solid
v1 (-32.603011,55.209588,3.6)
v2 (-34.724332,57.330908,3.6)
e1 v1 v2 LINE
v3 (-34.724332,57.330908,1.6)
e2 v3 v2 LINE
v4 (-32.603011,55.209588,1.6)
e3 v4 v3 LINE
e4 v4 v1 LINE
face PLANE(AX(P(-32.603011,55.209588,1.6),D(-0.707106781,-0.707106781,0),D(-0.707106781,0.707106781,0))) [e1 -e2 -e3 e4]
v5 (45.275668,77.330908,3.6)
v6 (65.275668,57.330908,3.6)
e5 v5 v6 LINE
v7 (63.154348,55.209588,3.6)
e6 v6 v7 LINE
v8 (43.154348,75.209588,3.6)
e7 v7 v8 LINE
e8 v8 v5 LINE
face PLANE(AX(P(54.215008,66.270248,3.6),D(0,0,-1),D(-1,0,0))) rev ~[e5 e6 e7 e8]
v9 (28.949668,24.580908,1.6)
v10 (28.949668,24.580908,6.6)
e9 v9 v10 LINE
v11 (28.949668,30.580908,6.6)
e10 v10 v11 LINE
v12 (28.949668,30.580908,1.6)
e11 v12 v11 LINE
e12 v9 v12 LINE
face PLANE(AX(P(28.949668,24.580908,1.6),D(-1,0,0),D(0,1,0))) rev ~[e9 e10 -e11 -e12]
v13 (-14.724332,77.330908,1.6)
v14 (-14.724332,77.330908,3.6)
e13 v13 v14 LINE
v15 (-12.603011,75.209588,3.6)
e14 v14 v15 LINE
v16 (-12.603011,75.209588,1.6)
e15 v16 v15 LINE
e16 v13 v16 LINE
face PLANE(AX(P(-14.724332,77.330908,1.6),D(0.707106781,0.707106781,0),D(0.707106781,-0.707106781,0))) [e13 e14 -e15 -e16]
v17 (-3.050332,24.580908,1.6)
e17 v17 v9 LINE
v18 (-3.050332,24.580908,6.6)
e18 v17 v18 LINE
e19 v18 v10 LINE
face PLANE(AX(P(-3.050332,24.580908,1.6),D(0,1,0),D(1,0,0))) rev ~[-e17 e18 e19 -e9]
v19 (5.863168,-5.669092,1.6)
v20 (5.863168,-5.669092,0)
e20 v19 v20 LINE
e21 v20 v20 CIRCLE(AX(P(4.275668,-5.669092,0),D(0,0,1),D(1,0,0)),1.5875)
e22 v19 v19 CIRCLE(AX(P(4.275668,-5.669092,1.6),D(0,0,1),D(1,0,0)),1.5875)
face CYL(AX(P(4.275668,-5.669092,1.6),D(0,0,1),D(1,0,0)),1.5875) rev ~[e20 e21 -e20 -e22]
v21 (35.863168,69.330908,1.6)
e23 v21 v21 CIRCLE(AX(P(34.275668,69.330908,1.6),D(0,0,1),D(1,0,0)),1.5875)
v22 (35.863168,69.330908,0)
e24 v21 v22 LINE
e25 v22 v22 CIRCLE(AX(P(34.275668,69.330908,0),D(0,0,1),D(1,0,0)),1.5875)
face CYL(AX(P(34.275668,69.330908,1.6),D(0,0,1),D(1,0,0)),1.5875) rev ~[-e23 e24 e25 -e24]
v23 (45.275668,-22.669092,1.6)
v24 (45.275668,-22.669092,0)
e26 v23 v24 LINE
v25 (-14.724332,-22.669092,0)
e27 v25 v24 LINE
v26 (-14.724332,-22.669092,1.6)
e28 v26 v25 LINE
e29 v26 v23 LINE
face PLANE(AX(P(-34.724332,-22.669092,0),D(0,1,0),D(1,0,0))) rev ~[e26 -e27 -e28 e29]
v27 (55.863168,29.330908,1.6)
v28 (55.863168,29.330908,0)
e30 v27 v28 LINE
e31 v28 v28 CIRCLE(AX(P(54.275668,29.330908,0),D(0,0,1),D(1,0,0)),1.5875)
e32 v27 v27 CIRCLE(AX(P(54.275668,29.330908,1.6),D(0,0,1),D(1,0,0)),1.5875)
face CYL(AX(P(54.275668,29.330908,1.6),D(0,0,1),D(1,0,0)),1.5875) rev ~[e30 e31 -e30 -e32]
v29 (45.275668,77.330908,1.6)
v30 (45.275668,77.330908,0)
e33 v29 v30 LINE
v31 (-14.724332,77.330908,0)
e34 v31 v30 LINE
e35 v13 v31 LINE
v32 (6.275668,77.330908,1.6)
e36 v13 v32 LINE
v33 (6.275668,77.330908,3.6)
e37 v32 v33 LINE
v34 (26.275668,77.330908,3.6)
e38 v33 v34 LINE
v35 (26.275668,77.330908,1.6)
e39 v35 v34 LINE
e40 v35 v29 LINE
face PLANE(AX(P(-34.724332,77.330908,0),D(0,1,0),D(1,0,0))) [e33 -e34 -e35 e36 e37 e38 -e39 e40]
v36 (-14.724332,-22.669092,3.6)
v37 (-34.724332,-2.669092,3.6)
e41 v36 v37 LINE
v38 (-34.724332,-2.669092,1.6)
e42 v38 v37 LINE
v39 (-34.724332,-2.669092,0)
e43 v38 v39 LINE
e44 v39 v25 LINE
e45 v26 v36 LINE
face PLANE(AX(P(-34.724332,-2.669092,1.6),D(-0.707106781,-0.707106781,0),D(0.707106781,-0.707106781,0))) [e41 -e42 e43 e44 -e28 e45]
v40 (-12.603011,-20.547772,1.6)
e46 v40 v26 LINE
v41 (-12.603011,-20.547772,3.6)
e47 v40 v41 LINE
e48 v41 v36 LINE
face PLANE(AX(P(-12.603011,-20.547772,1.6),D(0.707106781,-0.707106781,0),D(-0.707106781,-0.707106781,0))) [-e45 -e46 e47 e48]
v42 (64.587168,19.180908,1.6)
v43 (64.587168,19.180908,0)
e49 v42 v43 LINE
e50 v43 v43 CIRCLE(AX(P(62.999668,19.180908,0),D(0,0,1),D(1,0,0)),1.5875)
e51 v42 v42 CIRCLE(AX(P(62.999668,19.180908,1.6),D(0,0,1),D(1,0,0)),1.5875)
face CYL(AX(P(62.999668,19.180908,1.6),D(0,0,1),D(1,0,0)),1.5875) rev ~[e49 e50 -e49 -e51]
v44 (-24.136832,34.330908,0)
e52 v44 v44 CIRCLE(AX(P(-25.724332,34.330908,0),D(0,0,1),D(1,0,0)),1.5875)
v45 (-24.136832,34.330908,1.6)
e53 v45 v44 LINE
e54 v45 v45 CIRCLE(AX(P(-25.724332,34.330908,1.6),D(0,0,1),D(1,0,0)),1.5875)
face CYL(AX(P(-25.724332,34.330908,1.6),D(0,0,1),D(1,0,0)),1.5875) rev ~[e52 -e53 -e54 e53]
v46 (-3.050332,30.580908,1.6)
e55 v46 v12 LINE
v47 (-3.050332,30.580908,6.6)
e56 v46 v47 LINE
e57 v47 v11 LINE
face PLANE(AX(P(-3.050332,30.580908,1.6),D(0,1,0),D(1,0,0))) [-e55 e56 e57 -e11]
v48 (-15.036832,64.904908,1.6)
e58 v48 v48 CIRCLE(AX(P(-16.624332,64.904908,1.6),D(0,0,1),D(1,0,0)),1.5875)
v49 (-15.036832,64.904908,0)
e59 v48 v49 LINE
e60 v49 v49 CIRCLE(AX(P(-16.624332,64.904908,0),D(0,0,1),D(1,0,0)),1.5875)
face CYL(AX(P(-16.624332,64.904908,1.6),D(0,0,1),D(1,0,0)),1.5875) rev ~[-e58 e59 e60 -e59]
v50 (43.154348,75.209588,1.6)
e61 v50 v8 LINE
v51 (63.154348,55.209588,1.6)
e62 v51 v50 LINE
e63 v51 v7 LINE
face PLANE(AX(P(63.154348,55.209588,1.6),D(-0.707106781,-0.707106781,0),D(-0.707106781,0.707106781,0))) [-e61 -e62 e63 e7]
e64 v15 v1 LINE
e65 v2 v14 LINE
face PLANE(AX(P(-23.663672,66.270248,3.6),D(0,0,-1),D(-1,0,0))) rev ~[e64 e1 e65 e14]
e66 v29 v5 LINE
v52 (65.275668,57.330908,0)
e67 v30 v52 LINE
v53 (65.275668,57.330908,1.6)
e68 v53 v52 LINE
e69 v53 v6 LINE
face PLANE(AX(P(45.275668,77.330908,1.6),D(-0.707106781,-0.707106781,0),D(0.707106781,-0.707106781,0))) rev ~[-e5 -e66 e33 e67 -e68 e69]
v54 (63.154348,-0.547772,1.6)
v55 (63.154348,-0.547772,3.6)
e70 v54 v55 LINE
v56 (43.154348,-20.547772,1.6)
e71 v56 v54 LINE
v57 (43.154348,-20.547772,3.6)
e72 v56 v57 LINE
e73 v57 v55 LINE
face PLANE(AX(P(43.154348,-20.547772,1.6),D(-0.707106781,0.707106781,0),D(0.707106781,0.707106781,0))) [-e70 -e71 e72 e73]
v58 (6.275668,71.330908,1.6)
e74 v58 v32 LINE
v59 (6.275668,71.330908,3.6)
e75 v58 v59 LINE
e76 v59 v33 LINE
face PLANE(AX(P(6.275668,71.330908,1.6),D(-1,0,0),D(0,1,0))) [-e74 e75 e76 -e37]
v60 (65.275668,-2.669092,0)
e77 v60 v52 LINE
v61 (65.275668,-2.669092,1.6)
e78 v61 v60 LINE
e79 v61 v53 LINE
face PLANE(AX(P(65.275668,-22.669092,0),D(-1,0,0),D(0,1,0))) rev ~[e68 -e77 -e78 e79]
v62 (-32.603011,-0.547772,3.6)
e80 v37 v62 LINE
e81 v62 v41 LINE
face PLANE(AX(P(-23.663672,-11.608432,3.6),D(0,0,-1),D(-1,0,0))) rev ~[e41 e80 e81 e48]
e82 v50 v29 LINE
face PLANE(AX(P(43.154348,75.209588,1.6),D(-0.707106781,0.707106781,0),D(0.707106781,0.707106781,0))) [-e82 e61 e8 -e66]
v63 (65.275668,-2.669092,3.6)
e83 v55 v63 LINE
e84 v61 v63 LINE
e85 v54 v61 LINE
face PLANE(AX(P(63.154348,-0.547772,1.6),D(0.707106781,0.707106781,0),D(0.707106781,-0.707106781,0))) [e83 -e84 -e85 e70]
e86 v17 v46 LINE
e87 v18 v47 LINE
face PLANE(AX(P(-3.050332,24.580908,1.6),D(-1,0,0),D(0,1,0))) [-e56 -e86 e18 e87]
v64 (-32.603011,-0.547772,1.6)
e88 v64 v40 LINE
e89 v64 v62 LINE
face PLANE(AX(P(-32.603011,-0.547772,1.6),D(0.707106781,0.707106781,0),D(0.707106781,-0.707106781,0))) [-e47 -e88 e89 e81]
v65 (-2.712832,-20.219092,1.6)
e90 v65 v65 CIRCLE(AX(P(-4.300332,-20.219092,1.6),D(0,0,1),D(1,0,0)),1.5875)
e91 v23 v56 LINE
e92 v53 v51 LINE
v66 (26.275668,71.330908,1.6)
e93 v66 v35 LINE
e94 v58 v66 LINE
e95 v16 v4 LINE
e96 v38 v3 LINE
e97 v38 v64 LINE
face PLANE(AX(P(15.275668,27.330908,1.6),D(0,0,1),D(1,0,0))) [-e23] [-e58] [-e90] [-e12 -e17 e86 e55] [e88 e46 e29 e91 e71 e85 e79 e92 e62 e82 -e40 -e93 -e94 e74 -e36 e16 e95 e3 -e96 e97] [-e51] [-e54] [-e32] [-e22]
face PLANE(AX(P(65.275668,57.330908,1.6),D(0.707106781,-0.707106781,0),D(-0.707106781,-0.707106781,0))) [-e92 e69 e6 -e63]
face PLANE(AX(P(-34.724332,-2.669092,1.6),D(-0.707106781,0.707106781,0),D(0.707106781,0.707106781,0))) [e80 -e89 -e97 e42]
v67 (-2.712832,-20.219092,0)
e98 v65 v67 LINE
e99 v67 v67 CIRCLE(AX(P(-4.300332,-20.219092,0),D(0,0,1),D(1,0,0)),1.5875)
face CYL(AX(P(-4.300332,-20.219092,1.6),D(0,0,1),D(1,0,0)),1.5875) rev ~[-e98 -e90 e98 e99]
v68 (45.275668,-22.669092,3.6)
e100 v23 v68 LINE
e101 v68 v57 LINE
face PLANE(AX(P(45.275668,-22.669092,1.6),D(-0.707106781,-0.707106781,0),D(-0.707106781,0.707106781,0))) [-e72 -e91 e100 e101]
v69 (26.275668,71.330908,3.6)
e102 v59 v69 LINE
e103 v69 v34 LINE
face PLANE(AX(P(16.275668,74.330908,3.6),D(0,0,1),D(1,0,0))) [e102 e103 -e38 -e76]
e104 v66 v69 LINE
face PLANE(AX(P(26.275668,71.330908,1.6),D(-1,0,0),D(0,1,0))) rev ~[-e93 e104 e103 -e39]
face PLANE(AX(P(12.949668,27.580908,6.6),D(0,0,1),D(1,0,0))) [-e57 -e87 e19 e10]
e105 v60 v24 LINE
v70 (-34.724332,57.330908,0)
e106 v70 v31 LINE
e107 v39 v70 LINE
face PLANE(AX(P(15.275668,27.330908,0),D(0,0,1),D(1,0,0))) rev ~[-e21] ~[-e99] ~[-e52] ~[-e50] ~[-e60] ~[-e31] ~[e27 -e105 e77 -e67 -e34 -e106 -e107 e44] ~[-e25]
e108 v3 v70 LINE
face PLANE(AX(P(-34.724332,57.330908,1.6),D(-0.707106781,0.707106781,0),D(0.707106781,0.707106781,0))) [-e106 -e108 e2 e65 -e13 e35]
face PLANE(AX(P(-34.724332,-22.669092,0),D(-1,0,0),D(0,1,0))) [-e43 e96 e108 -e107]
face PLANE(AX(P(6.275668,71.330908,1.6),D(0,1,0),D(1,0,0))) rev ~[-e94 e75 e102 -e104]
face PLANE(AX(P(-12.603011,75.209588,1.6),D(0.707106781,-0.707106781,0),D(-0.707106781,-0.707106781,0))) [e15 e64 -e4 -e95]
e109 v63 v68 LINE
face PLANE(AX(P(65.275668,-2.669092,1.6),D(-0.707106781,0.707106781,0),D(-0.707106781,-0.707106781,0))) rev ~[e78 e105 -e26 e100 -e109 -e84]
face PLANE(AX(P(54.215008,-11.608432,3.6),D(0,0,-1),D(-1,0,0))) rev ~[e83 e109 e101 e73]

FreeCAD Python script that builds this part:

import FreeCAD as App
import Part
import Sketcher

V = App.Vector


def add_polygon(sketch, points):
    """Adds a closed chain of lines whose ends are joined by coincident constraints."""
    first, n = sketch.GeometryCount, len(points)
    for a, b in zip(points, points[1:] + points[:1]):
        sketch.addGeometry(Part.LineSegment(App.Vector(*a, 0), App.Vector(*b, 0)), False)
    for i in range(n):
        sketch.addConstraint(Sketcher.Constraint("Coincident", first + i, 2, first + (i + 1) % n, 1))

doc = App.newDocument("Part")
body = doc.addObject("PartDesign::Body", "Body")

# Sketch on XY plane
sketch1 = body.newObject("Sketcher::SketchObject", "Sketch")
sketch1.AttachmentSupport = (doc.getObject("XY_Plane"), [""])
sketch1.MapMode = "FlatFace"
add_polygon(sketch1, [(-35, 77), (-35, -23), (65, -23), (65, 77)])  # lines 0-3
sketch1.addConstraint([
    Sketcher.Constraint("Vertical", 0),
    Sketcher.Constraint("Horizontal", 1),
    Sketcher.Constraint("Vertical", 2),
    Sketcher.Constraint("Horizontal", 3),
    Sketcher.Constraint("Equal", 3, 0),
    Sketcher.Constraint("DistanceX", 1, 1, 1, 2, 100.0),
    Sketcher.Constraint("DistanceX", 0, 2, -1, 1, 34.724332),
    Sketcher.Constraint("DistanceY", 0, 2, -1, 1, 22.669092),
])
pad1 = body.newObject("PartDesign::Pad", "Pad")
pad1.Profile = sketch1
pad1.Length = 1.6

# Sketch on XY plane
sketch2 = body.newObject("Sketcher::SketchObject", "Sketch001")
sketch2.AttachmentSupport = (doc.getObject("XY_Plane"), [""])
sketch2.MapMode = "FlatFace"
sketch2.AttachmentOffset = App.Placement(V(0, 0, 1.6), App.Rotation())
add_polygon(sketch2, [(-35, 57), (-15, 77), (-35, 77)])  # lines 0-2
add_polygon(sketch2, [(-15, -23), (-35, -3), (-35, -23)])  # lines 3-5
add_polygon(sketch2, [(45, 77), (65, 57), (65, 77)])  # lines 6-8
add_polygon(sketch2, [(65, -3), (45, -23), (65, -23)])  # lines 9-11
sketch2.addConstraint([
    Sketcher.Constraint("Horizontal", 1),
    Sketcher.Constraint("Vertical", 2),
    Sketcher.Constraint("Vertical", 4),
    Sketcher.Constraint("Horizontal", 5),
    Sketcher.Constraint("Vertical", 7),
    Sketcher.Constraint("Horizontal", 8),
    Sketcher.Constraint("Horizontal", 10),
    Sketcher.Constraint("Vertical", 11),
    Sketcher.Constraint("Perpendicular", 0, 3),
    Sketcher.Constraint("Parallel", 3, 6),
    Sketcher.Constraint("Perpendicular", 6, 9),
    Sketcher.Constraint("Horizontal", 2, 2, 6, 2),
    Sketcher.Constraint("Horizontal", 1, 2, 7, 2),
    Sketcher.Constraint("Horizontal", 5, 2, 9, 2),
    Sketcher.Constraint("Horizontal", 3, 2, 11, 2),
    Sketcher.Constraint("Vertical", 2, 2, 3, 2),
    Sketcher.Constraint("Vertical", 0, 2, 5, 2),
    Sketcher.Constraint("Vertical", 8, 2, 9, 2),
    Sketcher.Constraint("Vertical", 7, 2, 10, 2),
    Sketcher.Constraint("DistanceX", 1, 2, 1, 1, 20.0),
    Sketcher.Constraint("DistanceY", 3, 2, 2, 2, 60.0),
    Sketcher.Constraint("DistanceX", 0, 2, 6, 2, 80.0),
    Sketcher.Constraint("DistanceX", 0, 2, -1, 1, 14.724332),
    Sketcher.Constraint("DistanceY", -1, 1, 0, 2, 77.330908),
])
pocket1 = body.newObject("PartDesign::Pocket", "Pocket")
pocket1.Profile = sketch2
pocket1.Length = 1.6

# Sketch on XY plane
sketch3 = body.newObject("Sketcher::SketchObject", "Sketch002")
sketch3.AttachmentSupport = (doc.getObject("XY_Plane"), [""])
sketch3.MapMode = "FlatFace"
sketch3.AttachmentOffset = App.Placement(V(0, 0, 1.6), App.Rotation())
sketch3.addGeometry([
    Part.Circle(V(-25.7, 34.3, 0), V(0, 0, 1), 1.6),  # 0
    Part.Circle(V(-16.6, 64.9, 0), V(0, 0, 1), 1.6),  # 1
    Part.Circle(V(34.3, 69.3, 0), V(0, 0, 1), 1.6),  # 2
    Part.Circle(V(54.3, 29.3, 0), V(0, 0, 1), 1.6),  # 3
    Part.Circle(V(63, 19.2, 0), V(0, 0, 1), 1.6),  # 4
    Part.Circle(V(-4.3, -20.2, 0), V(0, 0, 1), 1.6),  # 5
    Part.Circle(V(4.3, -5.7, 0), V(0, 0, 1), 1.6),  # 6
], False)
sketch3.addConstraint([
    Sketcher.Constraint("Equal", 0, 1),
    Sketcher.Constraint("Equal", 1, 2),
    Sketcher.Constraint("Equal", 2, 3),
    Sketcher.Constraint("Equal", 3, 4),
    Sketcher.Constraint("Equal", 4, 5),
    Sketcher.Constraint("Equal", 5, 6),
    Sketcher.Constraint("Diameter", 0, 3.175),
    Sketcher.Constraint("DistanceX", 0, 3, 2, 3, 60.0),
    Sketcher.Constraint("DistanceY", 0, 3, 2, 3, 35.0),
    Sketcher.Constraint("DistanceX", 2, 3, 3, 3, 20.0),
    Sketcher.Constraint("DistanceY", 3, 3, 2, 3, 40.0),
    Sketcher.Constraint("DistanceX", 0, 3, 6, 3, 30.0),
    Sketcher.Constraint("DistanceY", 6, 3, 0, 3, 40.0),
    Sketcher.Constraint("DistanceX", 0, 3, 1, 3, 9.1),
    Sketcher.Constraint("DistanceX", 5, 3, 4, 3, 67.3),
    Sketcher.Constraint("DistanceY", 5, 3, 4, 3, 39.4),
    Sketcher.Constraint("DistanceY", 4, 3, 3, 3, 10.15),
    Sketcher.Constraint("DistanceY", 0, 3, 1, 3, 30.574),
    Sketcher.Constraint("DistanceX", 3, 3, 4, 3, 8.724),
    Sketcher.Constraint("DistanceX", 0, 3, -1, 1, 25.724332),
    Sketcher.Constraint("DistanceY", -1, 1, 0, 3, 34.330908),
])
pocket2 = body.newObject("PartDesign::Pocket", "Pocket001")
pocket2.Profile = sketch3
pocket2.Length = 1.6

# Sketch on XY plane
sketch4 = body.newObject("Sketcher::SketchObject", "Sketch003")
sketch4.AttachmentSupport = (doc.getObject("XY_Plane"), [""])
sketch4.MapMode = "FlatFace"
sketch4.AttachmentOffset = App.Placement(V(0, 0, 1.6), App.Rotation())
add_polygon(sketch4, [(-3, 31), (-3, 25), (29, 25), (29, 31)])  # lines 0-3
sketch4.addConstraint([
    Sketcher.Constraint("Vertical", 0),
    Sketcher.Constraint("Horizontal", 1),
    Sketcher.Constraint("Vertical", 2),
    Sketcher.Constraint("Horizontal", 3),
    Sketcher.Constraint("DistanceX", 1, 1, 1, 2, 32.0),
    Sketcher.Constraint("DistanceY", 0, 2, 0, 1, 6.0),
    Sketcher.Constraint("DistanceX", 0, 2, -1, 1, 3.050332),
    Sketcher.Constraint("DistanceY", -1, 1, 0, 2, 24.580908),
])
pad2 = body.newObject("PartDesign::Pad", "Pad001")
pad2.Profile = sketch4
pad2.Length = 5

# Sketch on XY plane
sketch5 = body.newObject("Sketcher::SketchObject", "Sketch004")
sketch5.AttachmentSupport = (doc.getObject("XY_Plane"), [""])
sketch5.MapMode = "FlatFace"
sketch5.AttachmentOffset = App.Placement(V(0, 0, 1.6), App.Rotation())
add_polygon(sketch5, [(-14.7, 77.3), (-34.7, 57.3), (-32.6, 55.2), (-12.6, 75.2)])  # lines 0-3
add_polygon(sketch5, [(65.3, 57.3), (45.3, 77.3), (43.2, 75.2), (63.2, 55.2)])  # lines 4-7
add_polygon(sketch5, [(45.3, -22.7), (65.3, -2.7), (63.2, -0.5), (43.2, -20.5)])  # lines 8-11
add_polygon(sketch5, [(-34.7, -2.7), (-14.7, -22.7), (-12.6, -20.5), (-32.6, -0.5)])  # lines 12-15
sketch5.addConstraint([
    Sketcher.Constraint("Perpendicular", 0, 1),
    Sketcher.Constraint("Perpendicular", 1, 2),
    Sketcher.Constraint("Perpendicular", 2, 3),
    Sketcher.Constraint("Parallel", 3, 4),
    Sketcher.Constraint("Perpendicular", 4, 5),
    Sketcher.Constraint("Perpendicular", 5, 6),
    Sketcher.Constraint("Perpendicular", 6, 7),
    Sketcher.Constraint("Parallel", 7, 8),
    Sketcher.Constraint("Perpendicular", 8, 9),
    Sketcher.Constraint("Perpendicular", 9, 10),
    Sketcher.Constraint("Perpendicular", 10, 11),
    Sketcher.Constraint("Parallel", 11, 12),
    Sketcher.Constraint("Perpendicular", 12, 13),
    Sketcher.Constraint("Perpendicular", 13, 14),
    Sketcher.Constraint("Perpendicular", 14, 15),
    Sketcher.Constraint("Horizontal", 3, 2, 4, 2),
    Sketcher.Constraint("Horizontal", 2, 2, 5, 2),
    Sketcher.Constraint("Horizontal", 1, 2, 6, 2),
    Sketcher.Constraint("Horizontal", 11, 2, 12, 2),
    Sketcher.Constraint("Horizontal", 10, 2, 13, 2),
    Sketcher.Constraint("Horizontal", 9, 2, 14, 2),
    Sketcher.Constraint("Vertical", 7, 2, 8, 2),
    Sketcher.Constraint("Vertical", 6, 2, 9, 2),
    Sketcher.Constraint("Vertical", 5, 2, 10, 2),
    Sketcher.Constraint("Vertical", 3, 2, 12, 2),
    Sketcher.Constraint("Vertical", 2, 2, 13, 2),
    Sketcher.Constraint("Distance", 1, 3.0),
    Sketcher.Constraint("DistanceX", 1, 2, 2, 2, 20.0),
    Sketcher.Constraint("DistanceX", 3, 2, 4, 2, 60.0),
    Sketcher.Constraint("DistanceY", 8, 2, 7, 2, 60.0),
    Sketcher.Constraint("DistanceX", 0, 2, -1, 1, 34.724332),
    Sketcher.Constraint("DistanceY", 9, 2, -1, 1, 0.547772),
])
pad3 = body.newObject("PartDesign::Pad", "Pad002")
pad3.Profile = sketch5
pad3.Length = 2

# Sketch on XY plane
sketch6 = body.newObject("Sketcher::SketchObject", "Sketch005")
sketch6.AttachmentSupport = (doc.getObject("XY_Plane"), [""])
sketch6.MapMode = "FlatFace"
sketch6.AttachmentOffset = App.Placement(V(0, 0, 1.6), App.Rotation())
add_polygon(sketch6, [(6, 77), (6, 71), (26, 71), (26, 77)])  # lines 0-3
sketch6.addConstraint([
    Sketcher.Constraint("Vertical", 0),
    Sketcher.Constraint("Horizontal", 1),
    Sketcher.Constraint("Vertical", 2),
    Sketcher.Constraint("Horizontal", 3),
    Sketcher.Constraint("DistanceX", 1, 1, 1, 2, 20.0),
    Sketcher.Constraint("DistanceY", 0, 2, 0, 1, 6.0),
    Sketcher.Constraint("DistanceX", -1, 1, 0, 2, 6.275668),
    Sketcher.Constraint("DistanceY", -1, 1, 0, 2, 71.330908),
])
pad4 = body.newObject("PartDesign::Pad", "Pad003")
pad4.Profile = sketch6
pad4.Length = 2

doc.recompute()
